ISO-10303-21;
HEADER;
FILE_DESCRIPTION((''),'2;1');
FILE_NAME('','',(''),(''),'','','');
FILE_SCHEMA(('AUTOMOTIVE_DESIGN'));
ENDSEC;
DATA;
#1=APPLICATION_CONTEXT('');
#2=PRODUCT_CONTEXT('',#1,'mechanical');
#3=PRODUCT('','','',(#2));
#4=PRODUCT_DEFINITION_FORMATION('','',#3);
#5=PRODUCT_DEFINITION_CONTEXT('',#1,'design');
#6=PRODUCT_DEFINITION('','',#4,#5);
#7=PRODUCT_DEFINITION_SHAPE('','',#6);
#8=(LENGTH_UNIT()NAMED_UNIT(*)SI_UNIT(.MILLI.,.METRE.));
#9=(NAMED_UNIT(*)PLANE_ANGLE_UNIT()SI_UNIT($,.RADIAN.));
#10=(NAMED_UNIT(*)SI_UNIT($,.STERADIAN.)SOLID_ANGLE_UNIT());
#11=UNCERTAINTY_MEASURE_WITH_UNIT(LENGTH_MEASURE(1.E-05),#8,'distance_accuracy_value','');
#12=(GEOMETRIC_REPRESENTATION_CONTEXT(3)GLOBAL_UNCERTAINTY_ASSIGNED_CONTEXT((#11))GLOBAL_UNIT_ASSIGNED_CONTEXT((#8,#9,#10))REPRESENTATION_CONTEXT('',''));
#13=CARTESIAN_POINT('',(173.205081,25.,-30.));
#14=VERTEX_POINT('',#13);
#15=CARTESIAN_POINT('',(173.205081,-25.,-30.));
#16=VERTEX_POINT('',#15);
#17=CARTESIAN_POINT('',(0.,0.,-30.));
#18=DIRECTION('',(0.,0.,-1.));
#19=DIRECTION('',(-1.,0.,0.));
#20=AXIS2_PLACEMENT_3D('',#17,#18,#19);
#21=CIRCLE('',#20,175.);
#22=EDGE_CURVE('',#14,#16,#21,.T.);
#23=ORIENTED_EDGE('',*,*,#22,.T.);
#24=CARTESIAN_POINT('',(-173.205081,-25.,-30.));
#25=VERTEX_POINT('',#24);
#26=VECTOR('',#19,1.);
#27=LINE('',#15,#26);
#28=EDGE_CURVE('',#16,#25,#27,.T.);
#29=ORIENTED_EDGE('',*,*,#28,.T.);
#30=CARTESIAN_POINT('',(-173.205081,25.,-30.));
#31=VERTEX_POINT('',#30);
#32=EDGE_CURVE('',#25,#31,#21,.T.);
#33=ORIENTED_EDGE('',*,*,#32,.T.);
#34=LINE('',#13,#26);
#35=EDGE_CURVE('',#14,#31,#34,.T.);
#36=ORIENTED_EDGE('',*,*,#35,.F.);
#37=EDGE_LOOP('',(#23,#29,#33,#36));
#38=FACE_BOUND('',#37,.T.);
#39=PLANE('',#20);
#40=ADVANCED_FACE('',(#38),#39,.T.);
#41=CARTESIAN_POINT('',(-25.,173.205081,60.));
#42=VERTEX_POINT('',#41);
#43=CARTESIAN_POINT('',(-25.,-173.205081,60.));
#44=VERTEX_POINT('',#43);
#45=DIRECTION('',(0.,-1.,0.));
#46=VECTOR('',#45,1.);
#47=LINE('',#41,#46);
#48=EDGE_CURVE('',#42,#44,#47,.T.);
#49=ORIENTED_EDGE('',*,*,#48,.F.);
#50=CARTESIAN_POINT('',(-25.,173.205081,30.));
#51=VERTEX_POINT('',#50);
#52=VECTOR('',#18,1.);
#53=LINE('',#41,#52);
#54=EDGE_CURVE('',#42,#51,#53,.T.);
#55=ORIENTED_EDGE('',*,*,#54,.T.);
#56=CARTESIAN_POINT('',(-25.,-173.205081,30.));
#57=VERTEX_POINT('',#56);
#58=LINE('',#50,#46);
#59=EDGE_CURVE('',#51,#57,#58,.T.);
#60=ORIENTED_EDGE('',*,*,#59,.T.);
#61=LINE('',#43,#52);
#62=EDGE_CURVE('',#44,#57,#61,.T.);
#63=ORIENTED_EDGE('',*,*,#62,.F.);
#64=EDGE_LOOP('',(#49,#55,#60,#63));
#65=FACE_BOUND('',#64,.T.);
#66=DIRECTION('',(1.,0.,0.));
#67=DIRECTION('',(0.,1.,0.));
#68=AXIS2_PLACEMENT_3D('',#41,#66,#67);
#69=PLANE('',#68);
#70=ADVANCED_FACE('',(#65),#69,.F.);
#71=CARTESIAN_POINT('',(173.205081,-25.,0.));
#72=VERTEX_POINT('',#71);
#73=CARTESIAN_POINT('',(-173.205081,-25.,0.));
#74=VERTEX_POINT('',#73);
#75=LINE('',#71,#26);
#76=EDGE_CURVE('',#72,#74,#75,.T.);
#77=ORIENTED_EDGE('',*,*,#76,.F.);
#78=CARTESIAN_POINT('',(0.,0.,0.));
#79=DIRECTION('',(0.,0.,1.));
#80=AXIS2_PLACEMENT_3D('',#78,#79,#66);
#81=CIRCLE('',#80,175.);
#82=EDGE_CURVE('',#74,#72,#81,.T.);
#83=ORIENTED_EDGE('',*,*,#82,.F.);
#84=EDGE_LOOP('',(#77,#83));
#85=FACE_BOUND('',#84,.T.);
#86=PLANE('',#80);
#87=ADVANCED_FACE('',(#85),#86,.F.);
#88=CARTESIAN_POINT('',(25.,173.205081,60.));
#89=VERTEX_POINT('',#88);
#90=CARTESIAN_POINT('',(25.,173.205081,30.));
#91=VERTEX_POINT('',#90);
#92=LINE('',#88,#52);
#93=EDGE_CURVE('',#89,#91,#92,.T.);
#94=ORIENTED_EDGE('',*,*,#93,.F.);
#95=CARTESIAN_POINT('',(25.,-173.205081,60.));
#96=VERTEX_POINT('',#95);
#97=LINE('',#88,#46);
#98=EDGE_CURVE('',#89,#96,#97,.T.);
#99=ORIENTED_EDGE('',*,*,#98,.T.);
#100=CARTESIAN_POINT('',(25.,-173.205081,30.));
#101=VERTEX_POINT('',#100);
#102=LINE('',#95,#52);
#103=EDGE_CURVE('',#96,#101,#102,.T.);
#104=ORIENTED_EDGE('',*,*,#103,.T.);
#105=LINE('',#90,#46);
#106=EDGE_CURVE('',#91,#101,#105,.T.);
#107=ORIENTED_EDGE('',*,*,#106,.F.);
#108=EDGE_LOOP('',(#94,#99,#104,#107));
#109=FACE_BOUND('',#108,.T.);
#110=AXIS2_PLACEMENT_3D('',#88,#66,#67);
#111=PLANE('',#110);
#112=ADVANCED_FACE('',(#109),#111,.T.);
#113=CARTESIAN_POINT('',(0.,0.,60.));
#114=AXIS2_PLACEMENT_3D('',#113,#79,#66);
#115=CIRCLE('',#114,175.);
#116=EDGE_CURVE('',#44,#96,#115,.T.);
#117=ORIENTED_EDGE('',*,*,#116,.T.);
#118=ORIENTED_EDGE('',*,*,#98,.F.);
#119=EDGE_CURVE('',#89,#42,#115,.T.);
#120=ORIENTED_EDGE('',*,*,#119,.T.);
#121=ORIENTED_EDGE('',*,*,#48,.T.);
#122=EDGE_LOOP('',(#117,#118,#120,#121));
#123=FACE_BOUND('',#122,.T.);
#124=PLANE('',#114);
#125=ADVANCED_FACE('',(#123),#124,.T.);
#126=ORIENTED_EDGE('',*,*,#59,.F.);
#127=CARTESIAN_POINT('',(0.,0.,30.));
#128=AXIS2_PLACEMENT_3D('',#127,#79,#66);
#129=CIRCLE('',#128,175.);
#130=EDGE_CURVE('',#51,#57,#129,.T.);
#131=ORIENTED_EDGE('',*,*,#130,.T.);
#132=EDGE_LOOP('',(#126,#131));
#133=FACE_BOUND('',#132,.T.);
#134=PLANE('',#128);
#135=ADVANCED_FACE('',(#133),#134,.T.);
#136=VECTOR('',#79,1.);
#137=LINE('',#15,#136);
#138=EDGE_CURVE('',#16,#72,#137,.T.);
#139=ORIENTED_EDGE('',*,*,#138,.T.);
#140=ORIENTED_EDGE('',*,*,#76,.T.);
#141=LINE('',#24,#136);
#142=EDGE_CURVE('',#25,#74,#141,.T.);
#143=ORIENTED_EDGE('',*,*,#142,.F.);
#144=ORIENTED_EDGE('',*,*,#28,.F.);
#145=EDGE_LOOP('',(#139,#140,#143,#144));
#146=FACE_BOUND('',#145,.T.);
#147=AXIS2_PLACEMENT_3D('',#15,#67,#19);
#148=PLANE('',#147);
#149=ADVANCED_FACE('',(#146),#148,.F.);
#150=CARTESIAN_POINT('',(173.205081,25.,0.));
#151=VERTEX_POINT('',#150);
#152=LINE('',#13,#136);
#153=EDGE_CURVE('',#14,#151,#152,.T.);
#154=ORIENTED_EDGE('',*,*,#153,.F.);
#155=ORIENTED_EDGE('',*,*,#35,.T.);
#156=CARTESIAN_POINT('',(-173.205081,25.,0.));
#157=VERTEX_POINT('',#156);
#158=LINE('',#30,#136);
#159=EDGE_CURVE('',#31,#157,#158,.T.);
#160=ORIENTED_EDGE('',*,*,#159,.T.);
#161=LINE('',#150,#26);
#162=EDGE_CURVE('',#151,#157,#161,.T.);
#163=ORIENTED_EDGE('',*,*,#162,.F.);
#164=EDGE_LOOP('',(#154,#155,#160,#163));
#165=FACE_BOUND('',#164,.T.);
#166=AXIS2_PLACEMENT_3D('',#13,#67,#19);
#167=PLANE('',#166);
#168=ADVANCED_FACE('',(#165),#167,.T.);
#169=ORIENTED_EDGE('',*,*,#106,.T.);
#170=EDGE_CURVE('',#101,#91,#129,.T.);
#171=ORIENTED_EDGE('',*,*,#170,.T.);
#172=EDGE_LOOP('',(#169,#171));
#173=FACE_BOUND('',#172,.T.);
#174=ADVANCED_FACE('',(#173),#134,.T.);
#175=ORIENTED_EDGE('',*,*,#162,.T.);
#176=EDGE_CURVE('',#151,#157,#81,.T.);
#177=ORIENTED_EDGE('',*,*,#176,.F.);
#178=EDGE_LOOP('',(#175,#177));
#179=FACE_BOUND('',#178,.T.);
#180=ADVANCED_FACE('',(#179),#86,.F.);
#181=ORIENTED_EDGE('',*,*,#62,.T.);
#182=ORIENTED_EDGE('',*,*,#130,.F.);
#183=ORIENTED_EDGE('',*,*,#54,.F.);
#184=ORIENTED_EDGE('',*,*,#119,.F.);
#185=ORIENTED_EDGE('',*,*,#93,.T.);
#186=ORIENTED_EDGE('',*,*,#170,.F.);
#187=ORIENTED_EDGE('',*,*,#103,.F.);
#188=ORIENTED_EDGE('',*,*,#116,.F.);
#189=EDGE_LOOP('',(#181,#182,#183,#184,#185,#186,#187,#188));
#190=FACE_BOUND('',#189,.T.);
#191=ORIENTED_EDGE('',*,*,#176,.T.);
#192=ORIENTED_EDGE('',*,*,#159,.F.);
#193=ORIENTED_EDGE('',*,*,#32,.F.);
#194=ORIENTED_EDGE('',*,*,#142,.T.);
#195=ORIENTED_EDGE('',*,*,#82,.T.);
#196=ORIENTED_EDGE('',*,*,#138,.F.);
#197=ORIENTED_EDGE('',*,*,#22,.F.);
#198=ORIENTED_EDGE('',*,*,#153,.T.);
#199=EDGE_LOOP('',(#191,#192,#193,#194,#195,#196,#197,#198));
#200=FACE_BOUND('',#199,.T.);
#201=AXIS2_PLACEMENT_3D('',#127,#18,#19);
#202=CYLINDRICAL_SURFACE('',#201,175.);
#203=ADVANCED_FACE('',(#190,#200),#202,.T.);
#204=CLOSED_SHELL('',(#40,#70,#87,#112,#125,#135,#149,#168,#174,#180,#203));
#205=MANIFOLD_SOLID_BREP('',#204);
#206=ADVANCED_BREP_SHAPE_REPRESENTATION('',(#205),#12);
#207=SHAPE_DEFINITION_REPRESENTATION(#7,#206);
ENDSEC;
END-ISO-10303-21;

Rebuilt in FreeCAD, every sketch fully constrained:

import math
import FreeCAD as App
import Part
import Sketcher
Q = App.Units.Quantity

doc = App.newDocument("Part")
body = doc.addObject("PartDesign::Body", "Body")

# Sketch on XY plane
sketch1 = doc.addObject("Sketcher::SketchObject", "Sketch")
body.addObject(sketch1)
sketch1.AttachmentSupport = (doc.XY_Plane, [""])
sketch1.MapMode = "FlatFace"
sketch1.addGeometry(Part.Circle(App.Vector(0, 0, 0), App.Vector(0, 0, 1), 175), False)
sketch1.addConstraint(Sketcher.Constraint("Coincident", 0, 3, -1, 1))
sketch1.addConstraint(Sketcher.Constraint("Diameter", 0, Q("350 mm")))
pad1 = doc.addObject("PartDesign::Pad", "Pad")
body.addObject(pad1)
pad1.Profile = sketch1
pad1.Length = 30

# Sketch on XY plane
sketch2 = doc.addObject("Sketcher::SketchObject", "Sketch001")
body.addObject(sketch2)
sketch2.AttachmentSupport = (doc.XY_Plane, [""])
sketch2.MapMode = "FlatFace"
sketch2.AttachmentOffset = App.Placement(App.Vector(0, 0, 30), App.Rotation())
sketch2.addGeometry(Part.LineSegment(App.Vector(25, -173.205081, 0), App.Vector(25, 173.205081, 0)), False)
sketch2.addGeometry(Part.ArcOfCircle(Part.Circle(App.Vector(0, 0, 0), App.Vector(0, 0, 1), 175), math.radians(81.786789), math.radians(98.213211)), False)
sketch2.addGeometry(Part.LineSegment(App.Vector(-25, 173.205081, 0), App.Vector(-25, -173.205081, 0)), False)
sketch2.addGeometry(Part.ArcOfCircle(Part.Circle(App.Vector(0, 0, 0), App.Vector(0, 0, 1), 175), math.radians(-98.213211), math.radians(-81.786789)), False)
sketch2.addConstraint(Sketcher.Constraint("Coincident", 0, 2, 1, 1))
sketch2.addConstraint(Sketcher.Constraint("Coincident", 1, 2, 2, 1))
sketch2.addConstraint(Sketcher.Constraint("Coincident", 2, 2, 3, 1))
sketch2.addConstraint(Sketcher.Constraint("Coincident", 3, 2, 0, 1))
sketch2.addConstraint(Sketcher.Constraint("Vertical", 0))
sketch2.addConstraint(Sketcher.Constraint("Vertical", 2))
sketch2.addConstraint(Sketcher.Constraint("Coincident", 1, 3, -1, 1))
sketch2.addConstraint(Sketcher.Constraint("Coincident", 3, 3, -1, 1))
sketch2.addConstraint(Sketcher.Constraint("Equal", 1, 3))
sketch2.addConstraint(Sketcher.Constraint("Horizontal", 0, 2, 1, 2))
sketch2.addConstraint(Sketcher.Constraint("Radius", 1, Q("175 mm")))
sketch2.addConstraint(Sketcher.Constraint("DistanceX", -1, 1, 0, 2, Q("25 mm")))
pad2 = doc.addObject("PartDesign::Pad", "Pad001")
body.addObject(pad2)
pad2.Profile = sketch2
pad2.Length = 30

# Sketch on XY plane
sketch3 = doc.addObject("Sketcher::SketchObject", "Sketch002")
body.addObject(sketch3)
sketch3.AttachmentSupport = (doc.XY_Plane, [""])
sketch3.MapMode = "FlatFace"
sketch3.AttachmentOffset = App.Placement(App.Vector(0, 0, -30), App.Rotation())
sketch3.addGeometry(Part.LineSegment(App.Vector(-173.205081, 25, 0), App.Vector(173.205081, 25, 0)), False)
sketch3.addGeometry(Part.ArcOfCircle(Part.Circle(App.Vector(0, 0, 0), App.Vector(0, 0, 1), 175), math.radians(-8.213211), math.radians(8.213211)), False)
sketch3.addGeometry(Part.LineSegment(App.Vector(173.205081, -25, 0), App.Vector(-173.205081, -25, 0)), False)
sketch3.addGeometry(Part.ArcOfCircle(Part.Circle(App.Vector(0, 0, 0), App.Vector(0, 0, 1), 175), math.radians(171.786789), math.radians(188.213211)), False)
sketch3.addConstraint(Sketcher.Constraint("Coincident", 0, 2, 1, 2))
sketch3.addConstraint(Sketcher.Constraint("Coincident", 1, 1, 2, 1))
sketch3.addConstraint(Sketcher.Constraint("Coincident", 2, 2, 3, 2))
sketch3.addConstraint(Sketcher.Constraint("Coincident", 3, 1, 0, 1))
sketch3.addConstraint(Sketcher.Constraint("Horizontal", 0))
sketch3.addConstraint(Sketcher.Constraint("Horizontal", 2))
sketch3.addConstraint(Sketcher.Constraint("Coincident", 1, 3, -1, 1))
sketch3.addConstraint(Sketcher.Constraint("Coincident", 3, 3, -1, 1))
sketch3.addConstraint(Sketcher.Constraint("Equal", 1, 3))
sketch3.addConstraint(Sketcher.Constraint("Vertical", 0, 2, 1, 1))
sketch3.addConstraint(Sketcher.Constraint("Radius", 1, Q("175 mm")))
sketch3.addConstraint(Sketcher.Constraint("DistanceY", -1, 1, 0, 2, Q("25 mm")))
pad3 = doc.addObject("PartDesign::Pad", "Pad002")
body.addObject(pad3)
pad3.Profile = sketch3
pad3.Length = 30

doc.recompute()
